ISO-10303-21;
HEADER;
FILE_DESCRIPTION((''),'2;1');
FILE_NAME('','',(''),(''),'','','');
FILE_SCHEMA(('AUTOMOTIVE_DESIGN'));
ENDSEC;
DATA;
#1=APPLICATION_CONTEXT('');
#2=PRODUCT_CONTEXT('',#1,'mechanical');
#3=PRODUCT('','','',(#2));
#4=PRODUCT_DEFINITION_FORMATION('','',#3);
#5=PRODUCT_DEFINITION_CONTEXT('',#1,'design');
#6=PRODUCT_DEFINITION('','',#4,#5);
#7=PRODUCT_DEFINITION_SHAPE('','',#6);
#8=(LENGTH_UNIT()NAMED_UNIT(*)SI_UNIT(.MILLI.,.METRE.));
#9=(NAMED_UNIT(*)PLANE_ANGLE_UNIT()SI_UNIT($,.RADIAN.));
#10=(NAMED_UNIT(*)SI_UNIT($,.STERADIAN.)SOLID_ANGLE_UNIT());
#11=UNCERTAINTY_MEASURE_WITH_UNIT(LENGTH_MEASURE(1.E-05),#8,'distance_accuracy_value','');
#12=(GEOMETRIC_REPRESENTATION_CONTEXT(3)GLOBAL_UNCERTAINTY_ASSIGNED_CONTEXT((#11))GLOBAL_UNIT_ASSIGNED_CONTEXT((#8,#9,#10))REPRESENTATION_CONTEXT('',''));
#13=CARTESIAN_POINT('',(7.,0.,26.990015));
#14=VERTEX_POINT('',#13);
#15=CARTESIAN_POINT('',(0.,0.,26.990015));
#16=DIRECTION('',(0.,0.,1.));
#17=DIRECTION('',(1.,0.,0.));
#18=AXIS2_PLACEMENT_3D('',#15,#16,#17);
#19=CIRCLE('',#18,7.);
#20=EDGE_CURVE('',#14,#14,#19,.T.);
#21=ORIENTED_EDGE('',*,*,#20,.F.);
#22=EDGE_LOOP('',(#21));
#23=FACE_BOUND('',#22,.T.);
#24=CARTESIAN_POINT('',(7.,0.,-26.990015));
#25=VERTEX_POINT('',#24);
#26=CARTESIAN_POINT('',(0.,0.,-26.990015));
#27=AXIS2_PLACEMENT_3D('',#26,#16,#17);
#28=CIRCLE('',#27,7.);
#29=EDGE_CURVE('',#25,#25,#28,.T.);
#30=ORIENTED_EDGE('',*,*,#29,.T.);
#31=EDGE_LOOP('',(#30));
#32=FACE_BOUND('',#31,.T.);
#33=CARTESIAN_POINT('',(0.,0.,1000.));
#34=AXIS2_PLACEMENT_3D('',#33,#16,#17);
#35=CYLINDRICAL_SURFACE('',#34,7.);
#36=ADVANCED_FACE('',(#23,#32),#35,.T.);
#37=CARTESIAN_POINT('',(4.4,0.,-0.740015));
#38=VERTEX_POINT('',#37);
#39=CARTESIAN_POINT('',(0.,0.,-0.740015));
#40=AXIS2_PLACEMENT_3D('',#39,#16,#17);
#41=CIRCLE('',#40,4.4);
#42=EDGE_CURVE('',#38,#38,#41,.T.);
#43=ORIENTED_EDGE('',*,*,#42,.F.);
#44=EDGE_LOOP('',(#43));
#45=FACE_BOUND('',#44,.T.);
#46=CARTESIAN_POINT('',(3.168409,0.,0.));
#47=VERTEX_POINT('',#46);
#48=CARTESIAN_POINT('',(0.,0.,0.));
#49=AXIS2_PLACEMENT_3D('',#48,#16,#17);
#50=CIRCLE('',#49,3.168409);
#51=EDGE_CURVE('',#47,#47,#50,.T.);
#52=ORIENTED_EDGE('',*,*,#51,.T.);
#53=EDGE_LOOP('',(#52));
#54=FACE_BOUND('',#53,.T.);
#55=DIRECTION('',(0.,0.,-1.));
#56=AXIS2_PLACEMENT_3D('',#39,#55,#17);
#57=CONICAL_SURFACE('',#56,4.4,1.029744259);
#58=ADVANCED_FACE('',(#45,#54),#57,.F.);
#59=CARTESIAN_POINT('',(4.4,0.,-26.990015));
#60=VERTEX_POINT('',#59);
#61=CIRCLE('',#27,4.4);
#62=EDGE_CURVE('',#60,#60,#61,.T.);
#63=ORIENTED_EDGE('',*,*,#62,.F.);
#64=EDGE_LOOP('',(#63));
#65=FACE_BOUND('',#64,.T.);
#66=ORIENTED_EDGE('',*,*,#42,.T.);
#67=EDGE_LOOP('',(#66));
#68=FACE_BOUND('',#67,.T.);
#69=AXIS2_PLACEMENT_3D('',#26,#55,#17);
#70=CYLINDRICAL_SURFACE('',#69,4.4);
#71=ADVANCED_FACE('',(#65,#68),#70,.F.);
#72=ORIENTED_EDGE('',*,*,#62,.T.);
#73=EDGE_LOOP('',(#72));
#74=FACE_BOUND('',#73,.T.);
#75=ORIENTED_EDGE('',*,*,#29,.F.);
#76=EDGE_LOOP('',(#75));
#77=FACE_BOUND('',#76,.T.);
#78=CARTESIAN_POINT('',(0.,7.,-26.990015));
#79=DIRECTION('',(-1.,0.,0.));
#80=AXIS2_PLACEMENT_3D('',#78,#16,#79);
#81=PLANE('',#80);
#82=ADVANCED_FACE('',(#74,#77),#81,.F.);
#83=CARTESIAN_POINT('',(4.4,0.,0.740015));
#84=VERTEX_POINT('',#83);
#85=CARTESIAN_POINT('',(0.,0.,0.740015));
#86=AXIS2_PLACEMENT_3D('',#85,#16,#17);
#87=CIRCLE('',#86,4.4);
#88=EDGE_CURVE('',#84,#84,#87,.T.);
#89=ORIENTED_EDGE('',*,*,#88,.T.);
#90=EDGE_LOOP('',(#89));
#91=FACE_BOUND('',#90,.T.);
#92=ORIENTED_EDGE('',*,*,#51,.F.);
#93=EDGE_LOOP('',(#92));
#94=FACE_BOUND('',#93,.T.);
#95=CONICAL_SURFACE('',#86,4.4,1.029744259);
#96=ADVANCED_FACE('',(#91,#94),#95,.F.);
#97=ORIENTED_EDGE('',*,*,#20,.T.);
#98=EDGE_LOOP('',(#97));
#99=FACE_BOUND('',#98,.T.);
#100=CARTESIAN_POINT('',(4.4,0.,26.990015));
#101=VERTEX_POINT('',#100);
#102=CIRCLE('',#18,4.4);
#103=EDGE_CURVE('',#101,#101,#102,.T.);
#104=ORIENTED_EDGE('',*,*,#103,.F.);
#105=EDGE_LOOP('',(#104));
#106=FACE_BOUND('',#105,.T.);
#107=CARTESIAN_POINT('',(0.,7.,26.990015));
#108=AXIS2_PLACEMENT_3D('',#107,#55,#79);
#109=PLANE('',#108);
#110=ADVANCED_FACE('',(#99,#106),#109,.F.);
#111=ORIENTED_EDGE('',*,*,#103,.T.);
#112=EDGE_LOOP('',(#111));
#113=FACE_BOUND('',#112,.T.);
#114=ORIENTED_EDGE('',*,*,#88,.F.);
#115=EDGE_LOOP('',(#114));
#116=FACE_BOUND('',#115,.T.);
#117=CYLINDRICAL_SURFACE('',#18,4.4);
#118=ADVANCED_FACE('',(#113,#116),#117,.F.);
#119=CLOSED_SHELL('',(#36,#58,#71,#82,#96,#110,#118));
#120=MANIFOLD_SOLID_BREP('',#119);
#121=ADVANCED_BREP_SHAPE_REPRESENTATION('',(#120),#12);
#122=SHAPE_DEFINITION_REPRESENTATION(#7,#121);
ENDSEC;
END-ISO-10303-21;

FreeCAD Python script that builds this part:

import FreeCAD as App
import Part
import Sketcher
from FreeCAD import Vector


def add_polygon(sketch, points):
    """Adds a closed chain of lines whose ends are joined by coincident constraints."""
    first, n = sketch.GeometryCount, len(points)
    for a, b in zip(points, points[1:] + points[:1]):
        sketch.addGeometry(Part.LineSegment(App.Vector(*a, 0), App.Vector(*b, 0)), False)
    for i in range(n):
        sketch.addConstraint(Sketcher.Constraint("Coincident", first + i, 2, first + (i + 1) % n, 1))

doc = App.newDocument("Part")
body = doc.addObject("PartDesign::Body", "Body")

sketch1 = body.newObject("Sketcher::SketchObject", "Sketch")
sketch1.AttachmentSupport = (doc.getObject("YZ_Plane"), [""])
sketch1.MapMode = "FlatFace"
add_polygon(sketch1, [(7, 27), (0, 27), (0, 0), (7, 0)])
sketch1.addConstraint([
    Sketcher.Constraint("Horizontal", 0),
    Sketcher.Constraint("Vertical", 1),
    Sketcher.Constraint("Horizontal", 2),
    Sketcher.Constraint("Vertical", 3),
    Sketcher.Constraint("Coincident", 1, 2, -1, 1),
    Sketcher.Constraint("DistanceX", 0, 2, 0, 1, 7.0),
    Sketcher.Constraint("DistanceY", 1, 2, 1, 1, 26.990015),
])
revolution = body.newObject("PartDesign::Revolution", "Revolution")
revolution.Profile = sketch1
revolution.ReferenceAxis = (sketch1, ["V_Axis"])
revolution.Angle = 360

sketch2 = body.newObject("Sketcher::SketchObject", "Sketch001")
sketch2.AttachmentSupport = (doc.getObject("XY_Plane"), [""])
sketch2.MapMode = "FlatFace"
sketch2.AttachmentOffset = App.Placement(Vector(0, 0, 26.990015), App.Rotation())
sketch2.addGeometry(Part.Circle(Vector(0, 0, 0), Vector(0, 0, 1), 4.4), False)
sketch2.addConstraint([
    Sketcher.Constraint("Coincident", 0, 3, -1, 1),
    Sketcher.Constraint("Diameter", 0, 8.8),
])
doc.recompute()
hole = body.newObject("PartDesign::Hole", "Hole")
hole.Profile = sketch2
hole.ThreadType = "None"
hole.Diameter = 8.8
hole.DepthType = "Dimension"
hole.Depth = 26.25
hole.DrillPoint = "Angled"
hole.DrillPointAngle = 118
body2 = doc.addObject("PartDesign::Body", "Body001")
doc.recompute()

body2.BaseFeature = body
doc.recompute()

mirroring = doc.addObject("Part::Mirroring", "Mirroring")
mirroring.Source = body
mirroring.Base = Vector(0, 0, 0)
mirroring.Normal = Vector(0, 0, 1)
body3 = doc.addObject("PartDesign::Body", "Body002")
body3.BaseFeature = mirroring
boolean = body2.newObject("PartDesign::Boolean", "Boolean")
boolean.Type = "Fuse"
boolean.addObjects([body3])
doc.recompute()
mirroring.Visibility = False

doc.recompute()
